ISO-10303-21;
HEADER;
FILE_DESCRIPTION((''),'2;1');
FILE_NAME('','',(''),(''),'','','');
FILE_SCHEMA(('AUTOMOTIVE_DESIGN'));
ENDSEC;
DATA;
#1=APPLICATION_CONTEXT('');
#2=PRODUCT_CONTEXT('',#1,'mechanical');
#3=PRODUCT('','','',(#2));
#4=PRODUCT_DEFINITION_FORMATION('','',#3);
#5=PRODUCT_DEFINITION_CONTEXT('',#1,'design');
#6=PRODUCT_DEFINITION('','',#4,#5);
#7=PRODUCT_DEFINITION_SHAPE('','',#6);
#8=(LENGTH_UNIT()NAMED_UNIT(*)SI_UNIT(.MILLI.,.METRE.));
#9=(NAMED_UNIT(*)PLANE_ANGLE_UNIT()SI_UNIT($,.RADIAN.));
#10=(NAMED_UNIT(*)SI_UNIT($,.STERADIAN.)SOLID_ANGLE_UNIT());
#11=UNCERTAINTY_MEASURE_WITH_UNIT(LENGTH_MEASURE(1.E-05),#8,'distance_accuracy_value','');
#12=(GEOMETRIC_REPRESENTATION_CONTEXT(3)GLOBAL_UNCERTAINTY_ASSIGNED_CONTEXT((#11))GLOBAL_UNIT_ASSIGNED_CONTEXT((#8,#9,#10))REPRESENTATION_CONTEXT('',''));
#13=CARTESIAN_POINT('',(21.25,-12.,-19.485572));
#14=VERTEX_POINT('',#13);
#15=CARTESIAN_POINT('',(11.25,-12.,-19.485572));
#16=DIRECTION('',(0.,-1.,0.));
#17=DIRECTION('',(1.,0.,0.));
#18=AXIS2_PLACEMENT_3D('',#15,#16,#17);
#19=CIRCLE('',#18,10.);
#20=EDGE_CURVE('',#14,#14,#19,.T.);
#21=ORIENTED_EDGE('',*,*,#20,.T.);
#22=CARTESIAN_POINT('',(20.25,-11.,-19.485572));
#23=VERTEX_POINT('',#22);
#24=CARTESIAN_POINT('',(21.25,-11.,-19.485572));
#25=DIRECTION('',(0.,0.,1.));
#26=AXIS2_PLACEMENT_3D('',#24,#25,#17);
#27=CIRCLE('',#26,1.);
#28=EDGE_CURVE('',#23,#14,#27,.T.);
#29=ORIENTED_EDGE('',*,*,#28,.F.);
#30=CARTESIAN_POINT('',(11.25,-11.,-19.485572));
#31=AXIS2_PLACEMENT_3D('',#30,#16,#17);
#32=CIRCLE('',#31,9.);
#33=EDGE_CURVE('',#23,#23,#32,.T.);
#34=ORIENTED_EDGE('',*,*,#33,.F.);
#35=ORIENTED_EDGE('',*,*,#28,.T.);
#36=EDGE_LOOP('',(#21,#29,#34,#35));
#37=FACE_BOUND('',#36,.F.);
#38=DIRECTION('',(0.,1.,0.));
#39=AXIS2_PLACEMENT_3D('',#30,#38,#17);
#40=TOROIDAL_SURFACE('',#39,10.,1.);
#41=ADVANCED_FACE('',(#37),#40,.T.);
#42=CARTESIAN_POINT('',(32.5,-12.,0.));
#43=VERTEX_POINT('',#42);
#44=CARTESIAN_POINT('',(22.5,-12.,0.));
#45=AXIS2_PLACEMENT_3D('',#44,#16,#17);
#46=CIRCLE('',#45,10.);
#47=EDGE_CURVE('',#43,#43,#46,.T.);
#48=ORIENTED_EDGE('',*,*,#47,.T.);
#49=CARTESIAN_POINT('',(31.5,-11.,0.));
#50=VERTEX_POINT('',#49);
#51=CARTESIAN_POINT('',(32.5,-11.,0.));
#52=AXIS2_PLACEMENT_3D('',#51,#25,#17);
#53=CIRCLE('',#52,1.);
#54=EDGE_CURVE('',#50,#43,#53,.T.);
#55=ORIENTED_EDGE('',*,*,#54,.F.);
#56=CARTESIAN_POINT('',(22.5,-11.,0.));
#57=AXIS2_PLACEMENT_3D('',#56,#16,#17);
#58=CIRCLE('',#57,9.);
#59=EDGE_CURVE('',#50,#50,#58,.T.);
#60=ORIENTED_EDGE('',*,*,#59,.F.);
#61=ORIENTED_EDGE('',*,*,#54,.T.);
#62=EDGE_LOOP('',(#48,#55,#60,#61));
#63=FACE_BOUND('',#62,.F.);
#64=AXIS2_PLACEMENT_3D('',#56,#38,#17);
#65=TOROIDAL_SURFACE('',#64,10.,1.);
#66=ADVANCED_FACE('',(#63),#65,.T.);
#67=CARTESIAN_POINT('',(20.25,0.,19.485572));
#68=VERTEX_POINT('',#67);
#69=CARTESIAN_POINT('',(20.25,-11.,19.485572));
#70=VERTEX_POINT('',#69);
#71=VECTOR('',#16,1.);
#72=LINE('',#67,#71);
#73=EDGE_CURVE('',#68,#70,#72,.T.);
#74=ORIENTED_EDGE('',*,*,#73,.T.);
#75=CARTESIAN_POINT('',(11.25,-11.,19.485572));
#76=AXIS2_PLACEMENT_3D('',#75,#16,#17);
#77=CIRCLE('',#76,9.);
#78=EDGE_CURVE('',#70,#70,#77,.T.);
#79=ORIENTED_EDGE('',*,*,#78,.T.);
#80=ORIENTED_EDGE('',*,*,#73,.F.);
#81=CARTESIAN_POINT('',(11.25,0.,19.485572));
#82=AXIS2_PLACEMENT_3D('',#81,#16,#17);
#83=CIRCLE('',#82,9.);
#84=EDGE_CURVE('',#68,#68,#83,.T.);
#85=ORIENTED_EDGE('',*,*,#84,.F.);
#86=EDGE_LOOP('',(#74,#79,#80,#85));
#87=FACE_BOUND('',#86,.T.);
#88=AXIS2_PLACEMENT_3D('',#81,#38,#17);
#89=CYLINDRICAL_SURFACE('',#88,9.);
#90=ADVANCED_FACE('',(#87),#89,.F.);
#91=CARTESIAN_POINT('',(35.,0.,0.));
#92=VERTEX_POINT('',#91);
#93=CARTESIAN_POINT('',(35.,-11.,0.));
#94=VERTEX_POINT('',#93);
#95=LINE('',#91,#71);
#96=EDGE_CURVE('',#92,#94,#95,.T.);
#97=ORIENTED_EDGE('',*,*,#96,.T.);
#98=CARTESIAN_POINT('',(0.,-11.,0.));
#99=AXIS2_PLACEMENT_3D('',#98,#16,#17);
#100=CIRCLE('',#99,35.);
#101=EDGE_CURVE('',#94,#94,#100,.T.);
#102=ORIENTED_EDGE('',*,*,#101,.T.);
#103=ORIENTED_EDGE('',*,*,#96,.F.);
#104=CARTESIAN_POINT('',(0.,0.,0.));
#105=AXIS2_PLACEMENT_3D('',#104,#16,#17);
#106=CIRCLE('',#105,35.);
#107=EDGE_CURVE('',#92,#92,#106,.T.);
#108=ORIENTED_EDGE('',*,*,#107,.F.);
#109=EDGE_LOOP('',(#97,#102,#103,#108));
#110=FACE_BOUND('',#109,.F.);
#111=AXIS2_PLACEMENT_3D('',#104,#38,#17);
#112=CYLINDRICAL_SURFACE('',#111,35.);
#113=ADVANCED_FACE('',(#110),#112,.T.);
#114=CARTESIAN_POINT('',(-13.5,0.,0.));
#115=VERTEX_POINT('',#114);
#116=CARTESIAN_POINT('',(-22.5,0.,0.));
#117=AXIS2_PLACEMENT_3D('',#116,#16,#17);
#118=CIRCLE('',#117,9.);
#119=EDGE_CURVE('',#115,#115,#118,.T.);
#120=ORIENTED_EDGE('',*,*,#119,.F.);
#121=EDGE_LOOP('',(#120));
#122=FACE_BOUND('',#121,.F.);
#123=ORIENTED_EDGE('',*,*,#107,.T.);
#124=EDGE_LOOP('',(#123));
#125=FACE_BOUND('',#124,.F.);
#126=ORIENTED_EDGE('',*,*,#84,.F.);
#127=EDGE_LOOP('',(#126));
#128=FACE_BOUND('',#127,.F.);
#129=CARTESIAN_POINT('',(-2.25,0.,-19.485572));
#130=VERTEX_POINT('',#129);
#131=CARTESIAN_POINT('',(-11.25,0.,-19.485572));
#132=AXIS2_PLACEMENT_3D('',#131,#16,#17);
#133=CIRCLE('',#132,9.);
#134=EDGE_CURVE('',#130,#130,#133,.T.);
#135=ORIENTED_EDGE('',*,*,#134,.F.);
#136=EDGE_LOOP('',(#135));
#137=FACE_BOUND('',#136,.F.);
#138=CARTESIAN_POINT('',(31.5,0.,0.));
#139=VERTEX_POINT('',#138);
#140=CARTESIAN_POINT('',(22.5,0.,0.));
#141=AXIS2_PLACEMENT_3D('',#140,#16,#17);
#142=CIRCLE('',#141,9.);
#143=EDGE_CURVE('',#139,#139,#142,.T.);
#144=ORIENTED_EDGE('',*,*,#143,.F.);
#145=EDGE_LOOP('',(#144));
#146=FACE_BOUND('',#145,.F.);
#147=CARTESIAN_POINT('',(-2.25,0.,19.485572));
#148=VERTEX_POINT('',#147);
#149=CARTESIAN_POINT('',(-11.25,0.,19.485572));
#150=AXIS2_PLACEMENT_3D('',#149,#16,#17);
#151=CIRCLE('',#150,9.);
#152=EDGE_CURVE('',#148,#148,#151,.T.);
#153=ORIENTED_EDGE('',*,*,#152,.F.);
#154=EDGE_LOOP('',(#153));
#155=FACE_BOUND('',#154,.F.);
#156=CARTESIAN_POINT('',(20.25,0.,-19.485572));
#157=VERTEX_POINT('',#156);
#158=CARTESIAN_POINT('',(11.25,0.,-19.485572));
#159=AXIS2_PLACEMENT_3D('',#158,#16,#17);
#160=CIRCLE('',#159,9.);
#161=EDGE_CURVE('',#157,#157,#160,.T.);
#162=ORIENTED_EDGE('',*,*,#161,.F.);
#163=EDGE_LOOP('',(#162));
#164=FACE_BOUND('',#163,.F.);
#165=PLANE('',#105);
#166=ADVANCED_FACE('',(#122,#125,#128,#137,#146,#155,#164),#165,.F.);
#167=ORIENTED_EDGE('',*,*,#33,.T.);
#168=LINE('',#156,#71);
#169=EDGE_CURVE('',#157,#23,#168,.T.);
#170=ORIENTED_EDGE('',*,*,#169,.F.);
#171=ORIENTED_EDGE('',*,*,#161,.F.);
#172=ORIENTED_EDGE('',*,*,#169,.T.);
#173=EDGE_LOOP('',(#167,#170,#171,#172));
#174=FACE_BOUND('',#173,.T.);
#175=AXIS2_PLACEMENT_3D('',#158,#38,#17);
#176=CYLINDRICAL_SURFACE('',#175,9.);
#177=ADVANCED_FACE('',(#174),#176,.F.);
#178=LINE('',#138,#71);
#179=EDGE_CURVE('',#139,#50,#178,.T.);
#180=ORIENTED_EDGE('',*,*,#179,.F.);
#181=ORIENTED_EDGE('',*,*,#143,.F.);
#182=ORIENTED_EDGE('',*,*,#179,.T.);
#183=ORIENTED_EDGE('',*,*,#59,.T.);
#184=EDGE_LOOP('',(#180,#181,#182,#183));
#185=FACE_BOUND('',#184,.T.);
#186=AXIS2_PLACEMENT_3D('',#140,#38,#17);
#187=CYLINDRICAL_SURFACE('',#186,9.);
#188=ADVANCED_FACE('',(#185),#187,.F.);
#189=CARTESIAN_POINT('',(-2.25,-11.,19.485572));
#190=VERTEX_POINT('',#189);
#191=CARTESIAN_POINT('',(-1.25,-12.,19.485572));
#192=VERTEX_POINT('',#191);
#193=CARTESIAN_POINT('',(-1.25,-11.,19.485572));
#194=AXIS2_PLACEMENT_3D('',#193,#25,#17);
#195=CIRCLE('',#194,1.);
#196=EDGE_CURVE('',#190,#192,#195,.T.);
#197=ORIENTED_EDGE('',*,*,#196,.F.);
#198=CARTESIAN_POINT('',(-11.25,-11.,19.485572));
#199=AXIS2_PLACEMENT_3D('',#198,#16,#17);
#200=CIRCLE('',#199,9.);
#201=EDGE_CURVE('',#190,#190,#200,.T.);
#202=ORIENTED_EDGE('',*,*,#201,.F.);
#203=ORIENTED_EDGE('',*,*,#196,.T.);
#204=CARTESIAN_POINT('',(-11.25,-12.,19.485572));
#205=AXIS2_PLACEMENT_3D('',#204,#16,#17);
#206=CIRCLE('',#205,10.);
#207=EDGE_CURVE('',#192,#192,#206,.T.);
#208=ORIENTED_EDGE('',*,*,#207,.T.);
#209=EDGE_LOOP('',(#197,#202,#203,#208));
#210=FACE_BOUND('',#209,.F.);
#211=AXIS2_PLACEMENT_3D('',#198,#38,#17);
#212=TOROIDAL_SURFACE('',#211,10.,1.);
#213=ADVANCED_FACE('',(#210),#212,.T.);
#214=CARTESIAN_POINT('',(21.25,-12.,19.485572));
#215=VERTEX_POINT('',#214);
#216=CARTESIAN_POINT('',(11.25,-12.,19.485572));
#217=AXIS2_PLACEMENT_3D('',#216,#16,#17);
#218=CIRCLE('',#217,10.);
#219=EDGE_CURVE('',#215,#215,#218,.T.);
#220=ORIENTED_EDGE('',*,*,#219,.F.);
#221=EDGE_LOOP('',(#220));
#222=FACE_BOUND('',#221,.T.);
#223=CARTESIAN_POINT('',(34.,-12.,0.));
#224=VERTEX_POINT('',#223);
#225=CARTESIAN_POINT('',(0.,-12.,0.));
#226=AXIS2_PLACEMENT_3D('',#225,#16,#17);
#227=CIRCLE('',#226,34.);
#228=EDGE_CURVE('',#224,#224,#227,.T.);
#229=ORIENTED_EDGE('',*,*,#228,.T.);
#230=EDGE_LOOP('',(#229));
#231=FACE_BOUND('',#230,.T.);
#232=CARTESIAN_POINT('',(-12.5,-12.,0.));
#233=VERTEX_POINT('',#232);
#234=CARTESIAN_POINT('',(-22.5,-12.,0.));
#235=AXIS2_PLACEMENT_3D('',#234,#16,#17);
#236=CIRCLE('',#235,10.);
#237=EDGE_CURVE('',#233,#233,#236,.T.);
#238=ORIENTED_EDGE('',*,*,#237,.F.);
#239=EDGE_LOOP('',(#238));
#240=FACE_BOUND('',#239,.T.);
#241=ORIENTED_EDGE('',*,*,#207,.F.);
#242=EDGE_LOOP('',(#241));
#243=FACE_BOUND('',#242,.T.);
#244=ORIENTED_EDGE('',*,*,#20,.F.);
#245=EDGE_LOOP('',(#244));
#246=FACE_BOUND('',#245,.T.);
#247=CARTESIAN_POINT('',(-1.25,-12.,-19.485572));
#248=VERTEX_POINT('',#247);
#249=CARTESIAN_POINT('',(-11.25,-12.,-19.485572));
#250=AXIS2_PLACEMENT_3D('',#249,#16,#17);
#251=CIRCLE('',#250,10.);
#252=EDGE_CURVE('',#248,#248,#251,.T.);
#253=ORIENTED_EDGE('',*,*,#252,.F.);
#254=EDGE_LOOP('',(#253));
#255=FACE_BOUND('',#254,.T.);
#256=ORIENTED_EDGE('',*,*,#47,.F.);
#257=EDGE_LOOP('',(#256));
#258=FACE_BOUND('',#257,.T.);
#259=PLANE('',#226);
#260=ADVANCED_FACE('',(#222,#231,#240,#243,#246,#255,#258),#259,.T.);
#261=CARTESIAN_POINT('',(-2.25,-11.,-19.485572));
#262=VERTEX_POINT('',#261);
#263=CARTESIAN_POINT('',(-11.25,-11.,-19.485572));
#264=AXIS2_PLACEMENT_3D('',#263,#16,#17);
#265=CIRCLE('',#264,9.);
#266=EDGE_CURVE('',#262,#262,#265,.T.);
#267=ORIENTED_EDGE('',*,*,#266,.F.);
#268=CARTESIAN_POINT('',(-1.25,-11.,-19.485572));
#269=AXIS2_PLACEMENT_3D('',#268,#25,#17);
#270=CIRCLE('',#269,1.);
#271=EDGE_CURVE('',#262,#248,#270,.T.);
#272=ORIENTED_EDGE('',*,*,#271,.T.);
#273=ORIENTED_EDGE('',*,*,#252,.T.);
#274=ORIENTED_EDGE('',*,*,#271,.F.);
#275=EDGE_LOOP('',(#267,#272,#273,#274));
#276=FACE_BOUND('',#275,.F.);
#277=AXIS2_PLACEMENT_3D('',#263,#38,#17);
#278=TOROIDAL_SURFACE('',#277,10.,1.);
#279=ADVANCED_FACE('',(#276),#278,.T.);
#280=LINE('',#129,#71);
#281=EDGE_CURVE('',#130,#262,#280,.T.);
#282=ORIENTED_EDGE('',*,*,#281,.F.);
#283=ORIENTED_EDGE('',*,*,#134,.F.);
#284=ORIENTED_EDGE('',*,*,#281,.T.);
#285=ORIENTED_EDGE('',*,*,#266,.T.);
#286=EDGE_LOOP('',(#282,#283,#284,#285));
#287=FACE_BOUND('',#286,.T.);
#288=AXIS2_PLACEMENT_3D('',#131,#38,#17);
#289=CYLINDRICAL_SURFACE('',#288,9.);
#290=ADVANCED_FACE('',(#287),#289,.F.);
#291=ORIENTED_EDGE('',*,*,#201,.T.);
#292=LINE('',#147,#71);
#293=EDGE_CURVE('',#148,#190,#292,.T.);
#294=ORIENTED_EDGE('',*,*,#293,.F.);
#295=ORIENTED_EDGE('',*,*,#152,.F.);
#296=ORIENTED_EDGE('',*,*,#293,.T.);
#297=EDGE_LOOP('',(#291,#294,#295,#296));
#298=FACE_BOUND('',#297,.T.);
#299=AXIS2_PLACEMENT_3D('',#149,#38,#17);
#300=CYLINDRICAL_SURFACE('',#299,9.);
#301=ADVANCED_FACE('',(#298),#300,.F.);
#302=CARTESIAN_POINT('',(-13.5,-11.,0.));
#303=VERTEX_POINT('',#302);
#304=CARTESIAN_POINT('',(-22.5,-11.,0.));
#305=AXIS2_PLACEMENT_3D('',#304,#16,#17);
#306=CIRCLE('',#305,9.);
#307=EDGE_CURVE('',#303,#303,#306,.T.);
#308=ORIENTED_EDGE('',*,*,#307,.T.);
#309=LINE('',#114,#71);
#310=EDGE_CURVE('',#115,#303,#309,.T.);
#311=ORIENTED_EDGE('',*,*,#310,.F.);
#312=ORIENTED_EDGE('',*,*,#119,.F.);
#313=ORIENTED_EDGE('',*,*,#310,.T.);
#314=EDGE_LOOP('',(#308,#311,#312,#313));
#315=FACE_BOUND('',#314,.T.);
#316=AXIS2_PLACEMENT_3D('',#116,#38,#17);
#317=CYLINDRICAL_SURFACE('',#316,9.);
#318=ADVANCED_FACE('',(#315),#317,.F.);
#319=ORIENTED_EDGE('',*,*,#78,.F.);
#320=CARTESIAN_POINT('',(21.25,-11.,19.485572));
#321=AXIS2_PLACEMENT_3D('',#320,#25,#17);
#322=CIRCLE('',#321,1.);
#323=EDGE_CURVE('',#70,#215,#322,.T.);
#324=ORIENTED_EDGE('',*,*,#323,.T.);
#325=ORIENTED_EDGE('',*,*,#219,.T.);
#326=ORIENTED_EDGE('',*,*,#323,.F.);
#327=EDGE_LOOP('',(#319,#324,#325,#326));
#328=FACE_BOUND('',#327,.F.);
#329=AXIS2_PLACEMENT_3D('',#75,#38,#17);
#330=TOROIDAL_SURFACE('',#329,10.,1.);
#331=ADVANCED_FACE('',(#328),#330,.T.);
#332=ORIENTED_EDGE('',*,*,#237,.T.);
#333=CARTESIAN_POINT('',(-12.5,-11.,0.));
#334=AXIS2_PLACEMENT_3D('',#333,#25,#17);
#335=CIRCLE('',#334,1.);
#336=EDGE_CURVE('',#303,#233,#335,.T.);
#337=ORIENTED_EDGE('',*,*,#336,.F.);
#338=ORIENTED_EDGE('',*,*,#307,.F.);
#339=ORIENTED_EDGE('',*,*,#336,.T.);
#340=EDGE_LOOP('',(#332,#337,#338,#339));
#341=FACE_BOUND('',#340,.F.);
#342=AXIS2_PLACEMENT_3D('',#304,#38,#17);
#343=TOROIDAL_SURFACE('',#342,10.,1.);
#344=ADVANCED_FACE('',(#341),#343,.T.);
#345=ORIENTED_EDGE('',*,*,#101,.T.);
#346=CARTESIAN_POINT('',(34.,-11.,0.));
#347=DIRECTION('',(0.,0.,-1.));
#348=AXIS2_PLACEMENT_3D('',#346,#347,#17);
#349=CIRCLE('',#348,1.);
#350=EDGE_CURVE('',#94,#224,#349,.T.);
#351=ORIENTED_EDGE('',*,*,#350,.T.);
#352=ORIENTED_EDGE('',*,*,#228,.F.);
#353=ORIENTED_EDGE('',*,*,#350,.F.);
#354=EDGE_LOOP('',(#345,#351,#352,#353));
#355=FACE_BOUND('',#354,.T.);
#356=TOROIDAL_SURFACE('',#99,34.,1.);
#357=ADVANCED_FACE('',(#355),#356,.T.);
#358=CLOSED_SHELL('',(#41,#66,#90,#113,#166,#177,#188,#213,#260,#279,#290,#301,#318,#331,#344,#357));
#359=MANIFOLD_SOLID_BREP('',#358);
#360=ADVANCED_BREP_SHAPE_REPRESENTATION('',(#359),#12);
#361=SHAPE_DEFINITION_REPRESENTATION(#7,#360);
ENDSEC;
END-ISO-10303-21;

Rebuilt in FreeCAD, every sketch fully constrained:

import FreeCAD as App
import Part
import Sketcher
from FreeCAD import Vector


def edges_at(feature, points):
    """Names of the edges that pass closest to the given points."""
    edges = feature.Shape.Edges
    near = lambda p: min(range(len(edges)), key=lambda i: edges[i].distToShape(Part.Vertex(*p))[0])
    return sorted({f"Edge{near(p) + 1}" for p in points})

doc = App.newDocument("Part")
body = doc.addObject("PartDesign::Body", "Body")

# Sketch on XZ plane
sketch1 = doc.addObject("Sketcher::SketchObject", "Sketch")
body.addObject(sketch1)
sketch1.AttachmentSupport = (doc.XZ_Plane, [""])
sketch1.MapMode = "FlatFace"
sketch1.addGeometry(Part.Circle(Vector(0, 0, 0), Vector(0, 0, 1), 35), False)
sketch1.addGeometry(Part.Circle(Vector(-11, -19, 0), Vector(0, 0, 1), 9), False)
sketch1.addGeometry(Part.Circle(Vector(11, -19, 0), Vector(0, 0, 1), 9), False)
sketch1.addGeometry(Part.Circle(Vector(-22, 0, 0), Vector(0, 0, 1), 9), False)
sketch1.addGeometry(Part.Circle(Vector(-11, 19, 0), Vector(0, 0, 1), 9), False)
sketch1.addGeometry(Part.Circle(Vector(22, 0, 0), Vector(0, 0, 1), 9), False)
sketch1.addGeometry(Part.Circle(Vector(11, 19, 0), Vector(0, 0, 1), 9), False)
sketch1.addConstraint(Sketcher.Constraint("Coincident", 0, 3, -1, 1))
sketch1.addConstraint(Sketcher.Constraint("Equal", 1, 2))
sketch1.addConstraint(Sketcher.Constraint("Equal", 2, 3))
sketch1.addConstraint(Sketcher.Constraint("Equal", 3, 4))
sketch1.addConstraint(Sketcher.Constraint("Equal", 4, 5))
sketch1.addConstraint(Sketcher.Constraint("Equal", 5, 6))
sketch1.addConstraint(Sketcher.Constraint("Symmetric", 2, 3, 4, 3, -1, 1))
sketch1.addConstraint(Sketcher.Constraint("Symmetric", 3, 3, 5, 3, -1, 1))
sketch1.addConstraint(Sketcher.Constraint("Symmetric", 1, 3, 6, 3, -1, 1))
sketch1.addConstraint(Sketcher.Constraint("Symmetric", 1, 3, 2, 3, -2))
sketch1.addConstraint(Sketcher.Constraint("PointOnObject", 3, 3, -1))
sketch1.addConstraint(Sketcher.Constraint("Diameter", 0, 70.0))
sketch1.addConstraint(Sketcher.Constraint("Diameter", 1, 18.0))
sketch1.addConstraint(Sketcher.Constraint("DistanceX", 3, 3, 5, 3, 45.0))
sketch1.addConstraint(Sketcher.Constraint("DistanceX", 1, 3, 2, 3, 22.5))
sketch1.addConstraint(Sketcher.Constraint("DistanceY", 1, 3, -1, 1, 19.485572))
pad1 = doc.addObject("PartDesign::Pad", "Pad")
body.addObject(pad1)
pad1.Profile = sketch1
pad1.Length = 12
doc.recompute()

fillet = doc.addObject("PartDesign::Fillet", "Fillet")
body.addObject(fillet)
fillet.Base = (pad1, edges_at(pad1, [
    (-35, -12, 0),
    (13.5, -12, 0),
    (2.25, -12, 19.486),
    (-20.25, -12, 19.486),
    (-31.5, -12, 0),
    (-20.25, -12, -19.486),
    (2.25, -12, -19.486),
]))
fillet.Radius = 1

doc.recompute()
